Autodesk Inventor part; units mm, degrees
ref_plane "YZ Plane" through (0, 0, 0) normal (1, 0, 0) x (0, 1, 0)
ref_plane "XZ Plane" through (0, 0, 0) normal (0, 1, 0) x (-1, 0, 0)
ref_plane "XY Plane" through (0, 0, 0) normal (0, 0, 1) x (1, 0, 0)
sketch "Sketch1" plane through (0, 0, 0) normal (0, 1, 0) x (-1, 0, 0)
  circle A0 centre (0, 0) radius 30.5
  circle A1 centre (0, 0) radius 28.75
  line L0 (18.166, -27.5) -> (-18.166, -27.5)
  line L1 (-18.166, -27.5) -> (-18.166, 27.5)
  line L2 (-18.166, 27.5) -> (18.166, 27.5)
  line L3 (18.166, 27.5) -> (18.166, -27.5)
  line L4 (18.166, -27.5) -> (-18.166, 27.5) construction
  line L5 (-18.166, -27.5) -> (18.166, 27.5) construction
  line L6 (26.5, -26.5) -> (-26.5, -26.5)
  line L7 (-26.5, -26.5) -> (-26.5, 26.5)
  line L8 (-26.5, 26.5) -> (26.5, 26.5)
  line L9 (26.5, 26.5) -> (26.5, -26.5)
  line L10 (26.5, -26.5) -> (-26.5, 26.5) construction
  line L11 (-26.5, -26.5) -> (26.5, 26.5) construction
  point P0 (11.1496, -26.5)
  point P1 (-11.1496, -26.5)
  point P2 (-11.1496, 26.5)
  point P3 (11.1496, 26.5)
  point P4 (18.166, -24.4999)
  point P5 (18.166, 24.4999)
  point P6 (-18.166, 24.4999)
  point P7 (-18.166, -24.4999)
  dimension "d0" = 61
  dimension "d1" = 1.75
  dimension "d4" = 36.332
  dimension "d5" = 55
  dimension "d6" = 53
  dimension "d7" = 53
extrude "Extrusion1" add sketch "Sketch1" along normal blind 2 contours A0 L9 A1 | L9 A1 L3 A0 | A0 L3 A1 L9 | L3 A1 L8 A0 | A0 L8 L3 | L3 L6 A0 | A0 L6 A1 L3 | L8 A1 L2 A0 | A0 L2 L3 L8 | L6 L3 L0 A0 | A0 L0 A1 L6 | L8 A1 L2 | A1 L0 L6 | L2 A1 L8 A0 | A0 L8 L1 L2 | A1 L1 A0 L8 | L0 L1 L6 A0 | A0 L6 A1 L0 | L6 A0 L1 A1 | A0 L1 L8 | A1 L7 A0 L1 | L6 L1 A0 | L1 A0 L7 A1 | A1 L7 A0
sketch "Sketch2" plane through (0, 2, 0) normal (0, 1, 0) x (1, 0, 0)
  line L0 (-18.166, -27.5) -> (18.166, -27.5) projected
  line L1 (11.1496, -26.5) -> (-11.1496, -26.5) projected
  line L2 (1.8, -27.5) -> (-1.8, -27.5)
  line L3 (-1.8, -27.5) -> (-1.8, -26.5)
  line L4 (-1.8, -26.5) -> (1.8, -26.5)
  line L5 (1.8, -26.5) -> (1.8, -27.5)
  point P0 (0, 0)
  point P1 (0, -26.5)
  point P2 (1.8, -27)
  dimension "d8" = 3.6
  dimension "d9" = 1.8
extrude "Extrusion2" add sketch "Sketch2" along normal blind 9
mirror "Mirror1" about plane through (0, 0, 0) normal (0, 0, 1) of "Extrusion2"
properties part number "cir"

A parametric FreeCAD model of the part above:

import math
import FreeCAD as App
import Part
import Sketcher

V = App.Vector


def add_polygon(sketch, points):
    """Adds a closed chain of lines whose ends are joined by coincident constraints."""
    first, n = sketch.GeometryCount, len(points)
    for a, b in zip(points, points[1:] + points[:1]):
        sketch.addGeometry(Part.LineSegment(App.Vector(*a, 0), App.Vector(*b, 0)), False)
    for i in range(n):
        sketch.addConstraint(Sketcher.Constraint("Coincident", first + i, 2, first + (i + 1) % n, 1))

doc = App.newDocument("Part")
params = doc.addObject("Spreadsheet::Sheet", "Params")
for row, (alias, value) in enumerate([
    ("sketch1_radius", "30.5 mm"),
    ("sketch1_height", "3 mm"),
    ("sketch1_radius2", "28.75 mm"),
    ("pad1_length", "2 mm"),
    ("sketch2_width", "3.6 mm"),
    ("sketch2_height", "1 mm"),
    ("pad2_length", "9 mm"),
], start=1):
    params.set(f"A{row}", alias)
    params.set(f"B{row}", "=" + value)
    params.setAlias(f"B{row}", alias)

body = doc.addObject("PartDesign::Body", "Body")

# Sketch on XZ plane
sketch1 = body.newObject("Sketcher::SketchObject", "Sketch")
sketch1.AttachmentSupport = (doc.getObject("XZ_Plane"), [""])
sketch1.MapMode = "FlatFace"
sketch1.addGeometry(Part.LineSegment(V(-18.166, 24.499927, 0), V(-18.166, 27.5, 0)), False)
sketch1.addGeometry(Part.LineSegment(V(-18.166, 27.5, 0), V(18.166, 27.5, 0)), False)
sketch1.addGeometry(Part.LineSegment(V(18.166, 27.5, 0), V(18.166, 24.499927, 0)), False)
sketch1.addGeometry(Part.ArcOfCircle(Part.Circle(V(0, 0, 0), V(0, 0, 1), 30.5), math.radians(-53.444116), math.radians(53.444116)), False)
sketch1.addGeometry(Part.LineSegment(V(18.166, -24.499927, 0), V(18.166, -27.5, 0)), False)
sketch1.addGeometry(Part.LineSegment(V(18.166, -27.5, 0), V(-18.166, -27.5, 0)), False)
sketch1.addGeometry(Part.LineSegment(V(-18.166, -27.5, 0), V(-18.166, -24.499927, 0)), False)
sketch1.addGeometry(Part.ArcOfCircle(Part.Circle(V(0, 0, 0), V(0, 0, 1), 30.5), math.radians(126.555884), math.radians(233.444116)), False)
sketch1.addGeometry(Part.LineSegment(V(-11.149552, -26.5, 0), V(11.149552, -26.5, 0)), False)
sketch1.addGeometry(Part.ArcOfCircle(Part.Circle(V(0, 0, 0), V(0, 0, 1), 28.75), math.radians(-67.18167), math.radians(67.18167)), False)
sketch1.addGeometry(Part.LineSegment(V(11.149552, 26.5, 0), V(-11.149552, 26.5, 0)), False)
sketch1.addGeometry(Part.ArcOfCircle(Part.Circle(V(0, 0, 0), V(0, 0, 1), 28.75), math.radians(112.81833), math.radians(247.18167)), False)
sketch1.addConstraint(Sketcher.Constraint("Coincident", 0, 2, 1, 1))
sketch1.addConstraint(Sketcher.Constraint("Coincident", 1, 2, 2, 1))
sketch1.addConstraint(Sketcher.Constraint("Coincident", 2, 2, 3, 2))
sketch1.addConstraint(Sketcher.Constraint("Coincident", 3, 1, 4, 1))
sketch1.addConstraint(Sketcher.Constraint("Coincident", 4, 2, 5, 1))
sketch1.addConstraint(Sketcher.Constraint("Coincident", 5, 2, 6, 1))
sketch1.addConstraint(Sketcher.Constraint("Coincident", 6, 2, 7, 2))
sketch1.addConstraint(Sketcher.Constraint("Coincident", 7, 1, 0, 1))
sketch1.addConstraint(Sketcher.Constraint("Coincident", 8, 2, 9, 1))
sketch1.addConstraint(Sketcher.Constraint("Coincident", 9, 2, 10, 1))
sketch1.addConstraint(Sketcher.Constraint("Coincident", 10, 2, 11, 1))
sketch1.addConstraint(Sketcher.Constraint("Coincident", 11, 2, 8, 1))
sketch1.addConstraint(Sketcher.Constraint("Vertical", 0))
sketch1.addConstraint(Sketcher.Constraint("Horizontal", 1))
sketch1.addConstraint(Sketcher.Constraint("Vertical", 2))
sketch1.addConstraint(Sketcher.Constraint("Vertical", 4))
sketch1.addConstraint(Sketcher.Constraint("Horizontal", 5))
sketch1.addConstraint(Sketcher.Constraint("Vertical", 6))
sketch1.addConstraint(Sketcher.Constraint("Horizontal", 8))
sketch1.addConstraint(Sketcher.Constraint("Horizontal", 10))
sketch1.addConstraint(Sketcher.Constraint("Coincident", 3, 3, -1, 1))
sketch1.addConstraint(Sketcher.Constraint("Coincident", 7, 3, -1, 1))
sketch1.addConstraint(Sketcher.Constraint("Coincident", 9, 3, -1, 1))
sketch1.addConstraint(Sketcher.Constraint("Coincident", 11, 3, -1, 1))
sketch1.addConstraint(Sketcher.Constraint("Equal", 3, 7))
sketch1.addConstraint(Sketcher.Constraint("Equal", 9, 11))
sketch1.addConstraint(Sketcher.Constraint("Symmetric", 0, 2, 4, 2, -1, 1))
sketch1.addConstraint(Sketcher.Constraint("Horizontal", 3, 1, 6, 2))
sketch1.addConstraint(Sketcher.Constraint("Horizontal", 2, 2, 7, 1))
sketch1.addConstraint(Sketcher.Constraint("Vertical", 8, 2, 9, 2))
sketch1.addConstraint(Sketcher.Constraint("Radius", 3, 30.5))
sketch1.addConstraint(Sketcher.Constraint("DistanceX", 1, 1, 1, 2, 36.332))
sketch1.addConstraint(Sketcher.Constraint("DistanceY", 0, 1, 0, 2, 3.0))
sketch1.addConstraint(Sketcher.Constraint("Radius", 9, 28.75))
sketch1.addConstraint(Sketcher.Constraint("DistanceY", 4, 2, 8, 2, 1.0))
sketch1.setExpression("Constraints[30]", "Params.sketch1_radius")
sketch1.setExpression("Constraints[32]", "Params.sketch1_height")
sketch1.setExpression("Constraints[33]", "Params.sketch1_radius2")
pad1 = body.newObject("PartDesign::Pad", "Pad")
pad1.Profile = sketch1
pad1.setExpression("Length", "Params.pad1_length")
pad1.Reversed = True

# Sketch on XZ plane
sketch2 = body.newObject("Sketcher::SketchObject", "Sketch001")
sketch2.AttachmentSupport = (doc.getObject("XZ_Plane"), [""])
sketch2.MapMode = "FlatFace"
sketch2.AttachmentOffset = App.Placement(V(0, 0, -2), App.Rotation())
add_polygon(sketch2, [(-1.8, 26.5), (-1.8, 27.5), (1.8, 27.5), (1.8, 26.5)])  # lines 0-3
sketch2.addConstraint(Sketcher.Constraint("Vertical", 0))
sketch2.addConstraint(Sketcher.Constraint("Horizontal", 1))
sketch2.addConstraint(Sketcher.Constraint("Vertical", 2))
sketch2.addConstraint(Sketcher.Constraint("Horizontal", 3))
sketch2.addConstraint(Sketcher.Constraint("DistanceX", 1, 1, 1, 2, 3.6))
sketch2.addConstraint(Sketcher.Constraint("DistanceX", 0, 2, -1, 1, 1.8))
sketch2.addConstraint(Sketcher.Constraint("DistanceY", 0, 1, 0, 2, 1.0))
sketch2.addConstraint(Sketcher.Constraint("DistanceY", -1, 1, 0, 2, 27.5))
sketch2.setExpression("Constraints[8]", "Params.sketch2_width")
sketch2.setExpression("Constraints[10]", "Params.sketch2_height")
pad2 = body.newObject("PartDesign::Pad", "Pad001")
pad2.Profile = sketch2
pad2.setExpression("Length", "Params.pad2_length")
pad2.Reversed = True
doc.recompute()

mirrored = body.newObject("PartDesign::Mirrored", "Mirrored")
mirrored.Originals = [pad2]
mirrored.MirrorPlane = (doc.getObject("XY_Plane"), [""])
body.Tip = mirrored

doc.recompute()
